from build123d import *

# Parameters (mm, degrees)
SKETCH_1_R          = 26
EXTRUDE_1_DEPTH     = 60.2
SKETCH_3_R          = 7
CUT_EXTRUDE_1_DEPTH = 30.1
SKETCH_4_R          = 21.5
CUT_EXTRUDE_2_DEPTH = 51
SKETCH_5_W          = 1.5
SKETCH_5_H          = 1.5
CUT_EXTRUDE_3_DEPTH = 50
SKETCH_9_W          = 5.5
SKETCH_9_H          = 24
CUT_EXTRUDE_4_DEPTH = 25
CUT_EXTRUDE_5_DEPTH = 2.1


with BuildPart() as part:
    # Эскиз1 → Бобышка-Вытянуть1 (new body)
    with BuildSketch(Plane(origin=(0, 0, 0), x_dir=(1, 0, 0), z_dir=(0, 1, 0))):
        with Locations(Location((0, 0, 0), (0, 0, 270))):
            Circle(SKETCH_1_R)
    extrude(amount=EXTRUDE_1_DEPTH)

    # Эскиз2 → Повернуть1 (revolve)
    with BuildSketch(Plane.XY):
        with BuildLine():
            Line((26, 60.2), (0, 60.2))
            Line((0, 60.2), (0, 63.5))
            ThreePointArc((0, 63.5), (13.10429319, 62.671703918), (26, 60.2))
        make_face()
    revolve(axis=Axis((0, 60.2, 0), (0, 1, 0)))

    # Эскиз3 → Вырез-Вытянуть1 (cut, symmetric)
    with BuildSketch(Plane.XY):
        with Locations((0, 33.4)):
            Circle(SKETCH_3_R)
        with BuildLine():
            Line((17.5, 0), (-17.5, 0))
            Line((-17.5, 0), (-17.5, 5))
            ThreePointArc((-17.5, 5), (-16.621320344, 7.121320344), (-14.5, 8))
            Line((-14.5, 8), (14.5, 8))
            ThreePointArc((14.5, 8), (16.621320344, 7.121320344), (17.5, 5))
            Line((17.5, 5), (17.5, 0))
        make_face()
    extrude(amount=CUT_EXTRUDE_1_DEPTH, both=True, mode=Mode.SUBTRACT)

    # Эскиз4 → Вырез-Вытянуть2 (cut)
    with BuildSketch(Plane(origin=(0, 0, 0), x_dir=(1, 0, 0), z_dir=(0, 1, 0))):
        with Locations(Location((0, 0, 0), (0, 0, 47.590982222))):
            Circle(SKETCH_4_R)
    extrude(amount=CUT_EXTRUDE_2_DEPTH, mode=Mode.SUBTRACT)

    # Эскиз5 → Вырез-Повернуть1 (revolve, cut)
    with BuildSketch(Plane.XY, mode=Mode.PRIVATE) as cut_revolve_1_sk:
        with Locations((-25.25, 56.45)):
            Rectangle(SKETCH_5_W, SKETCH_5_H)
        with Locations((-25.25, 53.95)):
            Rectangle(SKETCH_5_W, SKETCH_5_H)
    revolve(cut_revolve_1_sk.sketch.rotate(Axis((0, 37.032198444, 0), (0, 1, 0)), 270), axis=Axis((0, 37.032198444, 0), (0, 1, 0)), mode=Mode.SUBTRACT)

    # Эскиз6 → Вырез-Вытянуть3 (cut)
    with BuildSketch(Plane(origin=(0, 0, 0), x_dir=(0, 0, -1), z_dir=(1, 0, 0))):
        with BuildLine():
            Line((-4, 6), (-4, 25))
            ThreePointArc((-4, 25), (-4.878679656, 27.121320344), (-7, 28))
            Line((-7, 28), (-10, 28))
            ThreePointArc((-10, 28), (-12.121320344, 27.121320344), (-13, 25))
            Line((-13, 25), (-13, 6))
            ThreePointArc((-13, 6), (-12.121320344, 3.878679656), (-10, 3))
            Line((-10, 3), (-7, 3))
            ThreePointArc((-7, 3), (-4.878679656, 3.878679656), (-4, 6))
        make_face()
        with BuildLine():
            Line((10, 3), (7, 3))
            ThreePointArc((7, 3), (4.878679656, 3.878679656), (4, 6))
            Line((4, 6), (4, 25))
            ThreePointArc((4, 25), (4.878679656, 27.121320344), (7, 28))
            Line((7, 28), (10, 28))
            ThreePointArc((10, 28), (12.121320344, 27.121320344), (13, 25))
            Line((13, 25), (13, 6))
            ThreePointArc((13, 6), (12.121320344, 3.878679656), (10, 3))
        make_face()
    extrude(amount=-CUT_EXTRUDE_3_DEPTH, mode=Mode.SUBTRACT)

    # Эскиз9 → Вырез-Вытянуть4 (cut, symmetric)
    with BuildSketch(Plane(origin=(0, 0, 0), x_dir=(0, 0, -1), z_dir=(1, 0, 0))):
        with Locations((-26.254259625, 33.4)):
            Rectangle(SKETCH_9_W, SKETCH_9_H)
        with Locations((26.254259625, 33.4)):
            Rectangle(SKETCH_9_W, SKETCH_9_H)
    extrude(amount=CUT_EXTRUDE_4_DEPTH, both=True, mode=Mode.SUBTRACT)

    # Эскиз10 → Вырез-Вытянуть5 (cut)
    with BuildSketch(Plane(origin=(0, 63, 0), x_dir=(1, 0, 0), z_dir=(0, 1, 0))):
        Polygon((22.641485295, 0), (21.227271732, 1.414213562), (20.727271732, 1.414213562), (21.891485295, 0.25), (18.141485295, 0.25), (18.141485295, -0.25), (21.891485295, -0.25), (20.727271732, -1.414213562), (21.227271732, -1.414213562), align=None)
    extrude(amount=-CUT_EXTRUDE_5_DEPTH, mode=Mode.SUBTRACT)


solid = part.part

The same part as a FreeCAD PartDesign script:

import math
import FreeCAD as App
import Part
import Sketcher
from FreeCAD import Vector
Q = App.Units.Quantity


def add_polygon(sketch, points):
    """Adds a closed chain of lines whose ends are joined by coincident constraints."""
    first, n = sketch.GeometryCount, len(points)
    for a, b in zip(points, points[1:] + points[:1]):
        sketch.addGeometry(Part.LineSegment(App.Vector(*a, 0), App.Vector(*b, 0)), False)
    for i in range(n):
        sketch.addConstraint(Sketcher.Constraint("Coincident", first + i, 2, first + (i + 1) % n, 1))

doc = App.newDocument("Part")
params = doc.addObject("Spreadsheet::Sheet", "Params")
for row, (alias, value) in enumerate([
    ("sketch1_diameter", "52 mm"),
    ("pad1_length", "60.2 mm"),
    ("sketch2_width", "26 mm"),
    ("sketch2_height", "3.3 mm"),
    ("revolution_angle", "360 deg"),
    ("sketch3_diameter", "14 mm"),
    ("sketch3_radius", "3 mm"),
    ("sketch3_width", "35 mm"),
    ("sketch3_height", "5 mm"),
    ("pocket1_length", "60.2 mm"),
    ("sketch4_diameter", "43 mm"),
    ("pocket2_length", "51 mm"),
    ("sketch5_width", "1.5 mm"),
    ("groove_angle", "360 deg"),
    ("sketch6_radius", "3 mm"),
    ("sketch6_width", "19 mm"),
    ("sketch6_height", "3 mm"),
    ("pocket3_length", "50 mm"),
    ("sketch7_width", "24 mm"),
    ("sketch7_height", "5.5 mm"),
    ("pocket4_length", "50 mm"),
    ("sketch8_length", "2 mm"),
    ("sketch8_width", "0.5 mm"),
    ("sketch8_width2", "3.75 mm"),
    ("pocket5_length", "2.1 mm"),
], start=1):
    params.set(f"A{row}", alias)
    params.set(f"B{row}", "=" + value)
    params.setAlias(f"B{row}", alias)

body = doc.addObject("PartDesign::Body", "Body")

sketch1 = body.newObject("Sketcher::SketchObject", "Sketch")
sketch1.AttachmentSupport = (doc.getObject("XZ_Plane"), [""])
sketch1.MapMode = "FlatFace"
sketch1.addGeometry(Part.Circle(Vector(0, 0, 0), Vector(0, 0, 1), 26), False)
sketch1.addConstraint([
    Sketcher.Constraint("Coincident", 0, 3, -1, 1),
    Sketcher.Constraint("Diameter", 0, Q("52 mm")),
])
sketch1.setExpression("Constraints[1]", "Params.sketch1_diameter")
pad1 = body.newObject("PartDesign::Pad", "Pad")
pad1.Profile = sketch1
pad1.setExpression("Length", "Params.pad1_length")
pad1.Reversed = True

sketch2 = body.newObject("Sketcher::SketchObject", "Sketch001")
sketch2.AttachmentSupport = (doc.getObject("XY_Plane"), [""])
sketch2.MapMode = "FlatFace"
sketch2.addGeometry([
    Part.LineSegment(Vector(0, 60.2, 0), Vector(26, 60.2, 0)),
    Part.ArcOfCircle(Part.Circle(Vector(0, -40.6, 0), Vector(0, 0, 1), 104.1), math.radians(75.53), math.radians(90)),
    Part.LineSegment(Vector(0, 63.5, 0), Vector(0, 60.2, 0)),
], False)
sketch2.addConstraint([
    Sketcher.Constraint("Coincident", 0, 2, 1, 1),
    Sketcher.Constraint("Coincident", 1, 2, 2, 1),
    Sketcher.Constraint("Coincident", 2, 2, 0, 1),
    Sketcher.Constraint("Horizontal", 0),
    Sketcher.Constraint("Vertical", 2),
    Sketcher.Constraint("PointOnObject", 1, 3, -2),
    Sketcher.Constraint("PointOnObject", 1, 2, -2),
    Sketcher.Constraint("DistanceX", 0, 1, 0, 2, Q("26 mm")),
    Sketcher.Constraint("DistanceY", 2, 2, 2, 1, Q("3.3 mm")),
    Sketcher.Constraint("DistanceY", -1, 1, 0, 2, Q("60.2 mm")),
])
sketch2.setExpression("Constraints[7]", "Params.sketch2_width")
sketch2.setExpression("Constraints[8]", "Params.sketch2_height")
revolution = body.newObject("PartDesign::Revolution", "Revolution")
revolution.Profile = sketch2
revolution.ReferenceAxis = (sketch2, ["V_Axis"])
revolution.setExpression("Angle", "Params.revolution_angle")

sketch3 = body.newObject("Sketcher::SketchObject", "Sketch002")
sketch3.AttachmentSupport = (doc.getObject("XY_Plane"), [""])
sketch3.MapMode = "FlatFace"
sketch3.addGeometry([
    Part.Circle(Vector(0, 33.4, 0), Vector(0, 0, 1), 7),
    Part.LineSegment(Vector(-17.5, 0, 0), Vector(17.5, 0, 0)),
    Part.LineSegment(Vector(17.5, 0, 0), Vector(17.5, 5, 0)),
    Part.ArcOfCircle(Part.Circle(Vector(14.5, 5, 0), Vector(0, 0, 1), 3), math.radians(0), math.radians(90)),
    Part.LineSegment(Vector(14.5, 8, 0), Vector(-14.5, 8, 0)),
    Part.ArcOfCircle(Part.Circle(Vector(-14.5, 5, 0), Vector(0, 0, 1), 3), math.radians(90), math.radians(180)),
    Part.LineSegment(Vector(-17.5, 5, 0), Vector(-17.5, 0, 0)),
], False)
sketch3.addConstraint([
    Sketcher.Constraint("Coincident", 1, 2, 2, 1),
    Sketcher.Constraint("Tangent", 2, 2, 3, 1),
    Sketcher.Constraint("Tangent", 3, 2, 4, 1),
    Sketcher.Constraint("Tangent", 4, 2, 5, 1),
    Sketcher.Constraint("Tangent", 5, 2, 6, 1),
    Sketcher.Constraint("Coincident", 6, 2, 1, 1),
    Sketcher.Constraint("Horizontal", 1),
    Sketcher.Constraint("Vertical", 2),
    Sketcher.Constraint("Horizontal", 4),
    Sketcher.Constraint("Vertical", 6),
    Sketcher.Constraint("Equal", 3, 5),
    Sketcher.Constraint("Symmetric", 1, 2, 6, 2, -1, 1),
    Sketcher.Constraint("PointOnObject", 0, 3, -2),
    Sketcher.Constraint("Diameter", 0, Q("14 mm")),
    Sketcher.Constraint("Radius", 3, Q("3 mm")),
    Sketcher.Constraint("DistanceX", 1, 1, 1, 2, Q("35 mm")),
    Sketcher.Constraint("DistanceY", 2, 1, 2, 2, Q("5 mm")),
    Sketcher.Constraint("DistanceY", -1, 1, 0, 3, Q("33.4 mm")),
])
sketch3.setExpression("Constraints[13]", "Params.sketch3_diameter")
sketch3.setExpression("Constraints[14]", "Params.sketch3_radius")
sketch3.setExpression("Constraints[15]", "Params.sketch3_width")
sketch3.setExpression("Constraints[16]", "Params.sketch3_height")
pocket1 = body.newObject("PartDesign::Pocket", "Pocket")
pocket1.Profile = sketch3
pocket1.setExpression("Length", "Params.pocket1_length")
pocket1.Midplane = True

sketch4 = body.newObject("Sketcher::SketchObject", "Sketch003")
sketch4.AttachmentSupport = (doc.getObject("XZ_Plane"), [""])
sketch4.MapMode = "FlatFace"
sketch4.addGeometry(Part.Circle(Vector(0, 0, 0), Vector(0, 0, 1), 22), False)
sketch4.addConstraint([
    Sketcher.Constraint("Coincident", 0, 3, -1, 1),
    Sketcher.Constraint("Diameter", 0, Q("43 mm")),
])
sketch4.setExpression("Constraints[1]", "Params.sketch4_diameter")
pocket2 = body.newObject("PartDesign::Pocket", "Pocket001")
pocket2.Profile = sketch4
pocket2.setExpression("Length", "Params.pocket2_length")

sketch5 = body.newObject("Sketcher::SketchObject", "Sketch004")
sketch5.AttachmentSupport = (doc.getObject("XY_Plane"), [""])
sketch5.MapMode = "FlatFace"
add_polygon(sketch5, [(-26, 57.2), (-26, 55.7), (-24.5, 55.7), (-24.5, 57.2)])
add_polygon(sketch5, [(-26, 54.7), (-26, 53.2), (-24.5, 53.2), (-24.5, 54.7)])
sketch5.addConstraint([
    Sketcher.Constraint("Vertical", 0),
    Sketcher.Constraint("Horizontal", 1),
    Sketcher.Constraint("Vertical", 2),
    Sketcher.Constraint("Horizontal", 3),
    Sketcher.Constraint("Vertical", 4),
    Sketcher.Constraint("Horizontal", 5),
    Sketcher.Constraint("Vertical", 6),
    Sketcher.Constraint("Horizontal", 7),
    Sketcher.Constraint("Vertical", 3, 2, 4, 2),
    Sketcher.Constraint("Vertical", 2, 2, 5, 2),
    Sketcher.Constraint("Equal", 7, 0),
    Sketcher.Constraint("Equal", 2, 4),
    Sketcher.Constraint("DistanceX", 1, 1, 1, 2, Q("1.5 mm")),
    Sketcher.Constraint("DistanceX", 0, 2, -1, 1, Q("26 mm")),
    Sketcher.Constraint("DistanceY", 4, 2, 3, 2, Q("4 mm")),
    Sketcher.Constraint("DistanceY", -1, 1, 0, 2, Q("55.7 mm")),
])
sketch5.setExpression("Constraints[20]", "Params.sketch5_width")
groove = body.newObject("PartDesign::Groove", "Groove")
groove.Profile = sketch5
groove.ReferenceAxis = (sketch5, ["V_Axis"])
groove.setExpression("Angle", "Params.groove_angle")

sketch6 = body.newObject("Sketcher::SketchObject", "Sketch005")
sketch6.AttachmentSupport = (doc.getObject("YZ_Plane"), [""])
sketch6.MapMode = "FlatFace"
sketch6.addGeometry([
    Part.LineSegment(Vector(6, 4, 0), Vector(25, 4, 0)),
    Part.ArcOfCircle(Part.Circle(Vector(25, 7, 0), Vector(0, 0, 1), 3), math.radians(-90), math.radians(0)),
    Part.LineSegment(Vector(28, 7, 0), Vector(28, 10, 0)),
    Part.ArcOfCircle(Part.Circle(Vector(25, 10, 0), Vector(0, 0, 1), 3), math.radians(0), math.radians(90)),
    Part.LineSegment(Vector(25, 13, 0), Vector(6, 13, 0)),
    Part.ArcOfCircle(Part.Circle(Vector(6, 10, 0), Vector(0, 0, 1), 3), math.radians(90), math.radians(180)),
    Part.LineSegment(Vector(3, 10, 0), Vector(3, 7, 0)),
    Part.ArcOfCircle(Part.Circle(Vector(6, 7, 0), Vector(0, 0, 1), 3), math.radians(180), math.radians(270)),
    Part.LineSegment(Vector(3, -7, 0), Vector(3, -10, 0)),
    Part.ArcOfCircle(Part.Circle(Vector(6, -10, 0), Vector(0, 0, 1), 3), math.radians(180), math.radians(270)),
    Part.LineSegment(Vector(6, -13, 0), Vector(25, -13, 0)),
    Part.ArcOfCircle(Part.Circle(Vector(25, -10, 0), Vector(0, 0, 1), 3), math.radians(-90), math.radians(0)),
    Part.LineSegment(Vector(28, -10, 0), Vector(28, -7, 0)),
    Part.ArcOfCircle(Part.Circle(Vector(25, -7, 0), Vector(0, 0, 1), 3), math.radians(0), math.radians(90)),
    Part.LineSegment(Vector(25, -4, 0), Vector(6, -4, 0)),
    Part.ArcOfCircle(Part.Circle(Vector(6, -7, 0), Vector(0, 0, 1), 3), math.radians(90), math.radians(180)),
], False)
sketch6.addConstraint([
    Sketcher.Constraint("Tangent", 0, 2, 1, 1),
    Sketcher.Constraint("Tangent", 1, 2, 2, 1),
    Sketcher.Constraint("Tangent", 2, 2, 3, 1),
    Sketcher.Constraint("Tangent", 3, 2, 4, 1),
    Sketcher.Constraint("Tangent", 4, 2, 5, 1),
    Sketcher.Constraint("Tangent", 5, 2, 6, 1),
    Sketcher.Constraint("Tangent", 6, 2, 7, 1),
    Sketcher.Constraint("Tangent", 7, 2, 0, 1),
    Sketcher.Constraint("Tangent", 8, 2, 9, 1),
    Sketcher.Constraint("Tangent", 9, 2, 10, 1),
    Sketcher.Constraint("Tangent", 10, 2, 11, 1),
    Sketcher.Constraint("Tangent", 11, 2, 12, 1),
    Sketcher.Constraint("Tangent", 12, 2, 13, 1),
    Sketcher.Constraint("Tangent", 13, 2, 14, 1),
    Sketcher.Constraint("Tangent", 14, 2, 15, 1),
    Sketcher.Constraint("Tangent", 15, 2, 8, 1),
    Sketcher.Constraint("Horizontal", 0),
    Sketcher.Constraint("Vertical", 2),
    Sketcher.Constraint("Horizontal", 4),
    Sketcher.Constraint("Vertical", 6),
    Sketcher.Constraint("Vertical", 8),
    Sketcher.Constraint("Horizontal", 10),
    Sketcher.Constraint("Vertical", 12),
    Sketcher.Constraint("Horizontal", 14),
    Sketcher.Constraint("Equal", 1, 3),
    Sketcher.Constraint("Equal", 3, 5),
    Sketcher.Constraint("Equal", 5, 7),
    Sketcher.Constraint("Equal", 7, 9),
    Sketcher.Constraint("Equal", 9, 11),
    Sketcher.Constraint("Equal", 11, 13),
    Sketcher.Constraint("Equal", 13, 15),
    Sketcher.Constraint("Symmetric", 5, 3, 9, 3, -1),
    Sketcher.Constraint("Symmetric", 1, 3, 13, 3, -1),
    Sketcher.Constraint("Radius", 1, Q("3 mm")),
    Sketcher.Constraint("DistanceX", 0, 1, 0, 2, Q("19 mm")),
    Sketcher.Constraint("DistanceY", 2, 1, 2, 2, Q("3 mm")),
    Sketcher.Constraint("DistanceX", -1, 1, 1, 3, Q("25 mm")),
    Sketcher.Constraint("DistanceY", -1, 1, 1, 3, Q("7 mm")),
])
sketch6.setExpression("Constraints[33]", "Params.sketch6_radius")
sketch6.setExpression("Constraints[34]", "Params.sketch6_width")
sketch6.setExpression("Constraints[35]", "Params.sketch6_height")
pocket3 = body.newObject("PartDesign::Pocket", "Pocket002")
pocket3.Profile = sketch6
pocket3.setExpression("Length", "Params.pocket3_length")

sketch7 = body.newObject("Sketcher::SketchObject", "Sketch006")
sketch7.AttachmentSupport = (doc.getObject("YZ_Plane"), [""])
sketch7.MapMode = "FlatFace"
add_polygon(sketch7, [(45, 29), (21, 29), (21, 24), (45, 24)])
add_polygon(sketch7, [(45, -24), (21, -24), (21, -29), (45, -29)])
sketch7.addConstraint([
    Sketcher.Constraint("Horizontal", 0),
    Sketcher.Constraint("Vertical", 1),
    Sketcher.Constraint("Horizontal", 2),
    Sketcher.Constraint("Vertical", 3),
    Sketcher.Constraint("Horizontal", 4),
    Sketcher.Constraint("Vertical", 5),
    Sketcher.Constraint("Horizontal", 6),
    Sketcher.Constraint("Vertical", 7),
    Sketcher.Constraint("Symmetric", 1, 2, 4, 2, -1),
    Sketcher.Constraint("Symmetric", 3, 2, 6, 2, -1),
    Sketcher.Constraint("DistanceX", 0, 2, 0, 1, Q("24 mm")),
    Sketcher.Constraint("DistanceY", 1, 2, 1, 1, Q("5.5 mm")),
    Sketcher.Constraint("DistanceX", -1, 1, 0, 2, Q("21.4 mm")),
    Sketcher.Constraint("DistanceY", -1, 1, 0, 2, Q("29.00426 mm")),
])
sketch7.setExpression("Constraints[18]", "Params.sketch7_width")
sketch7.setExpression("Constraints[19]", "Params.sketch7_height")
pocket4 = body.newObject("PartDesign::Pocket", "Pocket003")
pocket4.Profile = sketch7
pocket4.setExpression("Length", "Params.pocket4_length")
pocket4.Midplane = True

sketch8 = body.newObject("Sketcher::SketchObject", "Sketch007")
sketch8.AttachmentSupport = (doc.getObject("XZ_Plane"), [""])
sketch8.MapMode = "FlatFace"
sketch8.AttachmentOffset = App.Placement(Vector(0, 0, -63), App.Rotation())
add_polygon(sketch8, [(22.6, 0), (21.2, -1.4), (20.7, -1.4), (21.9, -0.2), (18.1, -0.2), (18.1, 0.2), (21.9, 0.2), (20.7, 1.4), (21.2, 1.4)])
sketch8.addConstraint([
    Sketcher.Constraint("Horizontal", 1),
    Sketcher.Constraint("Horizontal", 3),
    Sketcher.Constraint("Vertical", 4),
    Sketcher.Constraint("Horizontal", 5),
    Sketcher.Constraint("Horizontal", 7),
    Sketcher.Constraint("Symmetric", 2, 2, 5, 2, -1),
    Sketcher.Constraint("Symmetric", 1, 2, 6, 2, -1),
    Sketcher.Constraint("PointOnObject", 8, 2, -1),
    Sketcher.Constraint("Parallel", 0, 2),
    Sketcher.Constraint("Perpendicular", 2, 6),
    Sketcher.Constraint("Parallel", 6, 8),
    Sketcher.Constraint("Equal", 7, 4),
    Sketcher.Constraint("Distance", 0, Q("2 mm")),
    Sketcher.Constraint("DistanceX", 1, 2, 1, 1, Q("0.5 mm")),
    Sketcher.Constraint("DistanceX", 3, 2, 3, 1, Q("3.75 mm")),
    Sketcher.Constraint("DistanceX", -1, 1, 0, 2, Q("21.227272 mm")),
])
sketch8.setExpression("Constraints[21]", "Params.sketch8_length")
sketch8.setExpression("Constraints[22]", "Params.sketch8_width")
sketch8.setExpression("Constraints[23]", "Params.sketch8_width2")
pocket5 = body.newObject("PartDesign::Pocket", "Pocket004")
pocket5.Profile = sketch8
pocket5.setExpression("Length", "Params.pocket5_length")
pocket5.Reversed = True

doc.recompute()
